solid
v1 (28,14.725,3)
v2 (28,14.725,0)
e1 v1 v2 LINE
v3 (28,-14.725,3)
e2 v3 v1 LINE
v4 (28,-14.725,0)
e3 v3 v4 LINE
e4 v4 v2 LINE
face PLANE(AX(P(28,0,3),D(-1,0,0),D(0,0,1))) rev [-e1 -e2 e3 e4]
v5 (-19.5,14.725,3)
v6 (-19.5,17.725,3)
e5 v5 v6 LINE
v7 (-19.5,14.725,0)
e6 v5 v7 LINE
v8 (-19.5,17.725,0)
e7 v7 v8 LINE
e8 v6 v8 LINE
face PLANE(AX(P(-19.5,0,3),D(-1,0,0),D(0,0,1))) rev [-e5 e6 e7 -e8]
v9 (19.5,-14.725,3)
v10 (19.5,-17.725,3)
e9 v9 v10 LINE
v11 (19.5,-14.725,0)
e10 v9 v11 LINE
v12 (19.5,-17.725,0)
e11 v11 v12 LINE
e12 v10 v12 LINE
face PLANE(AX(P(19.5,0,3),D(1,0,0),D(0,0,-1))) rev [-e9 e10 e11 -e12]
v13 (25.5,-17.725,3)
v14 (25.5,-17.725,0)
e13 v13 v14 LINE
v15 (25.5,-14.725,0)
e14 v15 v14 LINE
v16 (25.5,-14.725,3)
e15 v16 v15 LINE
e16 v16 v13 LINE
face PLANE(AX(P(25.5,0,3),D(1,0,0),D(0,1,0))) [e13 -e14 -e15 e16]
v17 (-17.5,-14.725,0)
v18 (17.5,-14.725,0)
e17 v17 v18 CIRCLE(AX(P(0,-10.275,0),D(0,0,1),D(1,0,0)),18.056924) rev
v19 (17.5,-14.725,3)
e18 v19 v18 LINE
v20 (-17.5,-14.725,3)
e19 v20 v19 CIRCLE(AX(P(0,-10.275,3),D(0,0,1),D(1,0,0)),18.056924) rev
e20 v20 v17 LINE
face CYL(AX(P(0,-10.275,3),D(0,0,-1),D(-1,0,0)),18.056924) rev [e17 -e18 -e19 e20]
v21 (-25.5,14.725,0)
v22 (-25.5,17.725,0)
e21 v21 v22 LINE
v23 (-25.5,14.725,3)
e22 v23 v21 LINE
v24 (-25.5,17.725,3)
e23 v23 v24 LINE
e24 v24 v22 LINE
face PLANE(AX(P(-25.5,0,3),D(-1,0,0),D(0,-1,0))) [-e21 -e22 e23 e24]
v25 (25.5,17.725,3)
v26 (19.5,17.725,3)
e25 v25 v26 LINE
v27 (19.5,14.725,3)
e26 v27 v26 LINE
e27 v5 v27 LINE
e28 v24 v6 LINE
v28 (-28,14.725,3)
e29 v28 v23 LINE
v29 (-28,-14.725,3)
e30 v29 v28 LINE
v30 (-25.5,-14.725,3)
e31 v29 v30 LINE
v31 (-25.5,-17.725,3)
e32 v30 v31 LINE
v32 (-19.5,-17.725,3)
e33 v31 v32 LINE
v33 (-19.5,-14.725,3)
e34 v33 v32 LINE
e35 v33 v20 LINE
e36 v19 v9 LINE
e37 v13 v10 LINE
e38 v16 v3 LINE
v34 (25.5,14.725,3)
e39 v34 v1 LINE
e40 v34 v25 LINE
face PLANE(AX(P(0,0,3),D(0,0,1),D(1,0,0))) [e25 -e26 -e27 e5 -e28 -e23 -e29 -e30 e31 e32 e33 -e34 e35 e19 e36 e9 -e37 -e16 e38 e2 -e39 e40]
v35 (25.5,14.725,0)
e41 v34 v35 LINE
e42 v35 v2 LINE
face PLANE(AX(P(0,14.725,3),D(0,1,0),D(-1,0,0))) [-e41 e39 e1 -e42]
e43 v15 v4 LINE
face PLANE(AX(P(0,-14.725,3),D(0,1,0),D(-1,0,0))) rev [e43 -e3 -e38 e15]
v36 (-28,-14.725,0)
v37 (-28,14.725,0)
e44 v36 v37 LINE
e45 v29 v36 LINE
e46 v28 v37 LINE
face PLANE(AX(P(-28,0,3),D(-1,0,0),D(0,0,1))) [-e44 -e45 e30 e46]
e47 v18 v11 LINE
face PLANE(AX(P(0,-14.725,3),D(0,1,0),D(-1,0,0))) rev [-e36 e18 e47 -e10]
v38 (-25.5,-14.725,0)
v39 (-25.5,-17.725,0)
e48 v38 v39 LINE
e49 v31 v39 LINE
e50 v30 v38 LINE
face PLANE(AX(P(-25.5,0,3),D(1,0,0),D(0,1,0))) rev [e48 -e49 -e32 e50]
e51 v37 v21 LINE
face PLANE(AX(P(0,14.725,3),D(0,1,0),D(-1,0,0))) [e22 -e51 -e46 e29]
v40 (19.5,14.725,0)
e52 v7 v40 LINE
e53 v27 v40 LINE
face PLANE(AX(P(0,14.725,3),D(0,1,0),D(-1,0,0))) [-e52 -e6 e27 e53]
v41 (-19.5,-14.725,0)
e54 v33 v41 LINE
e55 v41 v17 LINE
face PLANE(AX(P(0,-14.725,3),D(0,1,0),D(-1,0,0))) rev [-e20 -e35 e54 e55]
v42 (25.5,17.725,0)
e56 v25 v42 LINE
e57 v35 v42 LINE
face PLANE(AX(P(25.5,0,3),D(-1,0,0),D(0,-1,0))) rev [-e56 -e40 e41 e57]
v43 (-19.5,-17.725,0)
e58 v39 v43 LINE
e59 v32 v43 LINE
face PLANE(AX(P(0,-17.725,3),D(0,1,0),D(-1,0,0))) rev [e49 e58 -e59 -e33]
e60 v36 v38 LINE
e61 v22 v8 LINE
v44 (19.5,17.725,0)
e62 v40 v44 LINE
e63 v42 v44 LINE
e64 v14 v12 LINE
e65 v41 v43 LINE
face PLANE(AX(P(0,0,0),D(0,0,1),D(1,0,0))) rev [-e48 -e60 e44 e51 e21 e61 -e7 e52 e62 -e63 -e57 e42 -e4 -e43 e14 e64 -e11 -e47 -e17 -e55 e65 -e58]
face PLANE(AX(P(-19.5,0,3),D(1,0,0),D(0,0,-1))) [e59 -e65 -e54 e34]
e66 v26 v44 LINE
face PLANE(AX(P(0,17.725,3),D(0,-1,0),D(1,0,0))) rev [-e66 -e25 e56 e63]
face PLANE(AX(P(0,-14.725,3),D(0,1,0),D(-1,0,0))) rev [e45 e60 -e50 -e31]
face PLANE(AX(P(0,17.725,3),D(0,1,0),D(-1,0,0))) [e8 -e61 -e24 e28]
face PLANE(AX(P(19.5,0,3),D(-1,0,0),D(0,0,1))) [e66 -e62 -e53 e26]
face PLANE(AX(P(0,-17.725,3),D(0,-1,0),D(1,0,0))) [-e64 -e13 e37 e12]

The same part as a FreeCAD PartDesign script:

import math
import FreeCAD as App
import Part
import Sketcher

V = App.Vector

doc = App.newDocument("Part")
body = doc.addObject("PartDesign::Body", "Body")

# Sketch on XY plane
sketch1 = body.newObject("Sketcher::SketchObject", "Sketch")
sketch1.AttachmentSupport = (doc.getObject("XY_Plane"), [""])
sketch1.MapMode = "FlatFace"
sketch1.addGeometry(Part.LineSegment(V(-28, 14.7, 0), V(-28, -14.7, 0)), False)
sketch1.addGeometry(Part.LineSegment(V(-28, -14.7, 0), V(-25.5, -14.7, 0)), False)
sketch1.addGeometry(Part.LineSegment(V(-25.5, -14.7, 0), V(-25.5, -17.7, 0)), False)
sketch1.addGeometry(Part.LineSegment(V(-25.5, -17.7, 0), V(-19.5, -17.7, 0)), False)
sketch1.addGeometry(Part.LineSegment(V(-19.5, -17.7, 0), V(-19.5, -14.7, 0)), False)
sketch1.addGeometry(Part.LineSegment(V(-19.5, -14.7, 0), V(-17.5, -14.7, 0)), False)
sketch1.addGeometry(Part.ArcOfCircle(Part.Circle(V(0, -10.3, 0), V(0, 0, 1), 18.1), math.radians(-14), math.radians(194)), False)
sketch1.addGeometry(Part.LineSegment(V(17.5, -14.7, 0), V(19.5, -14.7, 0)), False)
sketch1.addGeometry(Part.LineSegment(V(19.5, -14.7, 0), V(19.5, -17.7, 0)), False)
sketch1.addGeometry(Part.LineSegment(V(19.5, -17.7, 0), V(25.5, -17.7, 0)), False)
sketch1.addGeometry(Part.LineSegment(V(25.5, -17.7, 0), V(25.5, -14.7, 0)), False)
sketch1.addGeometry(Part.LineSegment(V(25.5, -14.7, 0), V(28, -14.7, 0)), False)
sketch1.addGeometry(Part.LineSegment(V(28, -14.7, 0), V(28, 14.7, 0)), False)
sketch1.addGeometry(Part.LineSegment(V(28, 14.7, 0), V(25.5, 14.7, 0)), False)
sketch1.addGeometry(Part.LineSegment(V(25.5, 14.7, 0), V(25.5, 17.7, 0)), False)
sketch1.addGeometry(Part.LineSegment(V(25.5, 17.7, 0), V(19.5, 17.7, 0)), False)
sketch1.addGeometry(Part.LineSegment(V(19.5, 17.7, 0), V(19.5, 14.7, 0)), False)
sketch1.addGeometry(Part.LineSegment(V(19.5, 14.7, 0), V(-19.5, 14.7, 0)), False)
sketch1.addGeometry(Part.LineSegment(V(-19.5, 14.7, 0), V(-19.5, 17.7, 0)), False)
sketch1.addGeometry(Part.LineSegment(V(-19.5, 17.7, 0), V(-25.5, 17.7, 0)), False)
sketch1.addGeometry(Part.LineSegment(V(-25.5, 17.7, 0), V(-25.5, 14.7, 0)), False)
sketch1.addGeometry(Part.LineSegment(V(-25.5, 14.7, 0), V(-28, 14.7, 0)), False)
sketch1.addConstraint(Sketcher.Constraint("Coincident", 0, 2, 1, 1))
sketch1.addConstraint(Sketcher.Constraint("Coincident", 1, 2, 2, 1))
sketch1.addConstraint(Sketcher.Constraint("Coincident", 2, 2, 3, 1))
sketch1.addConstraint(Sketcher.Constraint("Coincident", 3, 2, 4, 1))
sketch1.addConstraint(Sketcher.Constraint("Coincident", 4, 2, 5, 1))
sketch1.addConstraint(Sketcher.Constraint("Coincident", 5, 2, 6, 2))
sketch1.addConstraint(Sketcher.Constraint("Coincident", 6, 1, 7, 1))
sketch1.addConstraint(Sketcher.Constraint("Coincident", 7, 2, 8, 1))
sketch1.addConstraint(Sketcher.Constraint("Coincident", 8, 2, 9, 1))
sketch1.addConstraint(Sketcher.Constraint("Coincident", 9, 2, 10, 1))
sketch1.addConstraint(Sketcher.Constraint("Coincident", 10, 2, 11, 1))
sketch1.addConstraint(Sketcher.Constraint("Coincident", 11, 2, 12, 1))
sketch1.addConstraint(Sketcher.Constraint("Coincident", 12, 2, 13, 1))
sketch1.addConstraint(Sketcher.Constraint("Coincident", 13, 2, 14, 1))
sketch1.addConstraint(Sketcher.Constraint("Coincident", 14, 2, 15, 1))
sketch1.addConstraint(Sketcher.Constraint("Coincident", 15, 2, 16, 1))
sketch1.addConstraint(Sketcher.Constraint("Coincident", 16, 2, 17, 1))
sketch1.addConstraint(Sketcher.Constraint("Coincident", 17, 2, 18, 1))
sketch1.addConstraint(Sketcher.Constraint("Coincident", 18, 2, 19, 1))
sketch1.addConstraint(Sketcher.Constraint("Coincident", 19, 2, 20, 1))
sketch1.addConstraint(Sketcher.Constraint("Coincident", 20, 2, 21, 1))
sketch1.addConstraint(Sketcher.Constraint("Coincident", 21, 2, 0, 1))
sketch1.addConstraint(Sketcher.Constraint("Vertical", 0))
sketch1.addConstraint(Sketcher.Constraint("Horizontal", 1))
sketch1.addConstraint(Sketcher.Constraint("Vertical", 2))
sketch1.addConstraint(Sketcher.Constraint("Horizontal", 3))
sketch1.addConstraint(Sketcher.Constraint("Vertical", 4))
sketch1.addConstraint(Sketcher.Constraint("Horizontal", 5))
sketch1.addConstraint(Sketcher.Constraint("Horizontal", 7))
sketch1.addConstraint(Sketcher.Constraint("Vertical", 8))
sketch1.addConstraint(Sketcher.Constraint("Horizontal", 9))
sketch1.addConstraint(Sketcher.Constraint("Vertical", 10))
sketch1.addConstraint(Sketcher.Constraint("Horizontal", 11))
sketch1.addConstraint(Sketcher.Constraint("Vertical", 12))
sketch1.addConstraint(Sketcher.Constraint("Horizontal", 13))
sketch1.addConstraint(Sketcher.Constraint("Vertical", 14))
sketch1.addConstraint(Sketcher.Constraint("Horizontal", 15))
sketch1.addConstraint(Sketcher.Constraint("Vertical", 16))
sketch1.addConstraint(Sketcher.Constraint("Horizontal", 17))
sketch1.addConstraint(Sketcher.Constraint("Vertical", 18))
sketch1.addConstraint(Sketcher.Constraint("Horizontal", 19))
sketch1.addConstraint(Sketcher.Constraint("Vertical", 20))
sketch1.addConstraint(Sketcher.Constraint("Horizontal", 21))
sketch1.addConstraint(Sketcher.Constraint("Symmetric", 0, 2, 12, 2, -1, 1))
sketch1.addConstraint(Sketcher.Constraint("Symmetric", 2, 2, 14, 2, -1, 1))
sketch1.addConstraint(Sketcher.Constraint("Symmetric", 4, 2, 16, 2, -1, 1))
sketch1.addConstraint(Sketcher.Constraint("Symmetric", 7, 2, 17, 2, -1, 1))
sketch1.addConstraint(Sketcher.Constraint("Symmetric", 9, 2, 19, 2, -1, 1))
sketch1.addConstraint(Sketcher.Constraint("Symmetric", 3, 2, 8, 2, -2))
sketch1.addConstraint(Sketcher.Constraint("Symmetric", 1, 2, 10, 2, -2))
sketch1.addConstraint(Sketcher.Constraint("PointOnObject", 6, 3, -2))
sketch1.addConstraint(Sketcher.Constraint("Horizontal", 1, 2, 4, 2))
sketch1.addConstraint(Sketcher.Constraint("Horizontal", 17, 2, 20, 2))
sketch1.addConstraint(Sketcher.Constraint("DistanceX", 3, 1, 3, 2, 6.0))
sketch1.addConstraint(Sketcher.Constraint("DistanceX", 5, 1, 5, 2, 2.0))
sketch1.addConstraint(Sketcher.Constraint("DistanceX", 17, 2, 17, 1, 39.0))
sketch1.addConstraint(Sketcher.Constraint("DistanceY", 2, 2, 2, 1, 3.0))
sketch1.addConstraint(Sketcher.Constraint("DistanceX", 1, 1, 1, 2, 2.5))
sketch1.addConstraint(Sketcher.Constraint("DistanceY", 6, 3, 17, 2, 25.0))
sketch1.addConstraint(Sketcher.Constraint("DistanceY", 0, 2, 0, 1, 29.45))
pad1 = body.newObject("PartDesign::Pad", "Pad")
pad1.Profile = sketch1
pad1.Length = 3

doc.recompute()
